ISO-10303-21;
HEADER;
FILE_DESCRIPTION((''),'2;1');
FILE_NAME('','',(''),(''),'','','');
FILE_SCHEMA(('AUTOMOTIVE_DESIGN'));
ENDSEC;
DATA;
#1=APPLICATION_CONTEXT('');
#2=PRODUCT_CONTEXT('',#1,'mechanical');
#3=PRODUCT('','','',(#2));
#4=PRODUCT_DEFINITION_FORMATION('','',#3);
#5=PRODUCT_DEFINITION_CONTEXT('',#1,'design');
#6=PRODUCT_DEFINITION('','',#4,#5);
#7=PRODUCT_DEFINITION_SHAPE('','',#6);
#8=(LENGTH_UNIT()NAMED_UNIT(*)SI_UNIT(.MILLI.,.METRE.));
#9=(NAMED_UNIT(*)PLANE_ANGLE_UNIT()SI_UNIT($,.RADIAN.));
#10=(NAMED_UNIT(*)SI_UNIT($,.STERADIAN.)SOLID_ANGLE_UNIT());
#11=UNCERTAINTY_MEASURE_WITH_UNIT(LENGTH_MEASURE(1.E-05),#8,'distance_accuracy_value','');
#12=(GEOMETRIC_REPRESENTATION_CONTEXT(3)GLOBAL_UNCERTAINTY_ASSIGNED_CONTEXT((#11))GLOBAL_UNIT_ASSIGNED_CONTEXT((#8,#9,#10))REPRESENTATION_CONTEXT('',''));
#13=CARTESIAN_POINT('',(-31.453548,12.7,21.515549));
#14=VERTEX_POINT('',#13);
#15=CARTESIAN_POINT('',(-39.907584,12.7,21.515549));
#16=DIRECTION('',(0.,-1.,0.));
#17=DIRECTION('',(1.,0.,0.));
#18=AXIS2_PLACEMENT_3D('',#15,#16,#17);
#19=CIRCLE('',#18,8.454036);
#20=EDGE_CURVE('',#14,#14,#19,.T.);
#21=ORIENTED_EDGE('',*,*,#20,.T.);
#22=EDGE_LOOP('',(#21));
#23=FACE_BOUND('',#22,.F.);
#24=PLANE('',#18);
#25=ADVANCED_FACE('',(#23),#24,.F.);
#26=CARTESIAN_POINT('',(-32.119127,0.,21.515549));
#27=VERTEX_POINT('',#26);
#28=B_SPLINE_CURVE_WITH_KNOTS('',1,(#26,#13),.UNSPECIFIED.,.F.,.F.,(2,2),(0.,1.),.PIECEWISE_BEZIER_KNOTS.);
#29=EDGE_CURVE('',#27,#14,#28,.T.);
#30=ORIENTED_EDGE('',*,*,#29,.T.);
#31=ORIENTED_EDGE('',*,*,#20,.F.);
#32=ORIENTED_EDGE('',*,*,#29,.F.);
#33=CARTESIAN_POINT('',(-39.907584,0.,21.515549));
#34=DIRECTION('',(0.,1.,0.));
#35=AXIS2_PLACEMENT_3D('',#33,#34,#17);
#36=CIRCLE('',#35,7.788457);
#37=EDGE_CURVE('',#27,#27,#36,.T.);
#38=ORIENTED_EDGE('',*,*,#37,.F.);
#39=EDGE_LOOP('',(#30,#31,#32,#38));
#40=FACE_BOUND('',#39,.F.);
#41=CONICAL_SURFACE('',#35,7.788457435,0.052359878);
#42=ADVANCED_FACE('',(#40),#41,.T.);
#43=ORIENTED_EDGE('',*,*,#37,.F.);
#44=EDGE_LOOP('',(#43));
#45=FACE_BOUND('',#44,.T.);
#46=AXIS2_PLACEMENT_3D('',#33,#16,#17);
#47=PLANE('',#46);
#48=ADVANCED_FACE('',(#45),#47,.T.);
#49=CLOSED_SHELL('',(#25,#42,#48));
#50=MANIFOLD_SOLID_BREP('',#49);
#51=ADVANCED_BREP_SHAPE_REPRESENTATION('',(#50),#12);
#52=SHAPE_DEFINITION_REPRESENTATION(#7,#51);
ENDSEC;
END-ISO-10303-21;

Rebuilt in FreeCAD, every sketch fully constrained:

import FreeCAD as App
import Part
import Sketcher

V = App.Vector
Q = App.Units.Quantity

doc = App.newDocument("Part")
body = doc.addObject("PartDesign::Body", "Body")

# Sketch on XZ plane
sketch1 = doc.addObject("Sketcher::SketchObject", "Sketch")
body.addObject(sketch1)
sketch1.AttachmentSupport = (doc.XZ_Plane, [""])
sketch1.MapMode = "FlatFace"
sketch1.addGeometry(Part.Circle(V(-39.907584, 21.515549, 0), V(0, 0, 1), 7.788457), False)
sketch1.addConstraint([
    Sketcher.Constraint("Diameter", 0, 15.576915),
    Sketcher.Constraint("DistanceY", -1, 1, 0, 3, 21.515549),
    Sketcher.Constraint("DistanceX", 0, 3, -1, 1, 39.907584),
])
pad1 = doc.addObject("PartDesign::Pad", "Pad")
body.addObject(pad1)
pad1.Profile = sketch1
pad1.Length = Q("0.5 in")
pad1.Reversed = True
pad1.TaperAngle = 3

doc.recompute()
